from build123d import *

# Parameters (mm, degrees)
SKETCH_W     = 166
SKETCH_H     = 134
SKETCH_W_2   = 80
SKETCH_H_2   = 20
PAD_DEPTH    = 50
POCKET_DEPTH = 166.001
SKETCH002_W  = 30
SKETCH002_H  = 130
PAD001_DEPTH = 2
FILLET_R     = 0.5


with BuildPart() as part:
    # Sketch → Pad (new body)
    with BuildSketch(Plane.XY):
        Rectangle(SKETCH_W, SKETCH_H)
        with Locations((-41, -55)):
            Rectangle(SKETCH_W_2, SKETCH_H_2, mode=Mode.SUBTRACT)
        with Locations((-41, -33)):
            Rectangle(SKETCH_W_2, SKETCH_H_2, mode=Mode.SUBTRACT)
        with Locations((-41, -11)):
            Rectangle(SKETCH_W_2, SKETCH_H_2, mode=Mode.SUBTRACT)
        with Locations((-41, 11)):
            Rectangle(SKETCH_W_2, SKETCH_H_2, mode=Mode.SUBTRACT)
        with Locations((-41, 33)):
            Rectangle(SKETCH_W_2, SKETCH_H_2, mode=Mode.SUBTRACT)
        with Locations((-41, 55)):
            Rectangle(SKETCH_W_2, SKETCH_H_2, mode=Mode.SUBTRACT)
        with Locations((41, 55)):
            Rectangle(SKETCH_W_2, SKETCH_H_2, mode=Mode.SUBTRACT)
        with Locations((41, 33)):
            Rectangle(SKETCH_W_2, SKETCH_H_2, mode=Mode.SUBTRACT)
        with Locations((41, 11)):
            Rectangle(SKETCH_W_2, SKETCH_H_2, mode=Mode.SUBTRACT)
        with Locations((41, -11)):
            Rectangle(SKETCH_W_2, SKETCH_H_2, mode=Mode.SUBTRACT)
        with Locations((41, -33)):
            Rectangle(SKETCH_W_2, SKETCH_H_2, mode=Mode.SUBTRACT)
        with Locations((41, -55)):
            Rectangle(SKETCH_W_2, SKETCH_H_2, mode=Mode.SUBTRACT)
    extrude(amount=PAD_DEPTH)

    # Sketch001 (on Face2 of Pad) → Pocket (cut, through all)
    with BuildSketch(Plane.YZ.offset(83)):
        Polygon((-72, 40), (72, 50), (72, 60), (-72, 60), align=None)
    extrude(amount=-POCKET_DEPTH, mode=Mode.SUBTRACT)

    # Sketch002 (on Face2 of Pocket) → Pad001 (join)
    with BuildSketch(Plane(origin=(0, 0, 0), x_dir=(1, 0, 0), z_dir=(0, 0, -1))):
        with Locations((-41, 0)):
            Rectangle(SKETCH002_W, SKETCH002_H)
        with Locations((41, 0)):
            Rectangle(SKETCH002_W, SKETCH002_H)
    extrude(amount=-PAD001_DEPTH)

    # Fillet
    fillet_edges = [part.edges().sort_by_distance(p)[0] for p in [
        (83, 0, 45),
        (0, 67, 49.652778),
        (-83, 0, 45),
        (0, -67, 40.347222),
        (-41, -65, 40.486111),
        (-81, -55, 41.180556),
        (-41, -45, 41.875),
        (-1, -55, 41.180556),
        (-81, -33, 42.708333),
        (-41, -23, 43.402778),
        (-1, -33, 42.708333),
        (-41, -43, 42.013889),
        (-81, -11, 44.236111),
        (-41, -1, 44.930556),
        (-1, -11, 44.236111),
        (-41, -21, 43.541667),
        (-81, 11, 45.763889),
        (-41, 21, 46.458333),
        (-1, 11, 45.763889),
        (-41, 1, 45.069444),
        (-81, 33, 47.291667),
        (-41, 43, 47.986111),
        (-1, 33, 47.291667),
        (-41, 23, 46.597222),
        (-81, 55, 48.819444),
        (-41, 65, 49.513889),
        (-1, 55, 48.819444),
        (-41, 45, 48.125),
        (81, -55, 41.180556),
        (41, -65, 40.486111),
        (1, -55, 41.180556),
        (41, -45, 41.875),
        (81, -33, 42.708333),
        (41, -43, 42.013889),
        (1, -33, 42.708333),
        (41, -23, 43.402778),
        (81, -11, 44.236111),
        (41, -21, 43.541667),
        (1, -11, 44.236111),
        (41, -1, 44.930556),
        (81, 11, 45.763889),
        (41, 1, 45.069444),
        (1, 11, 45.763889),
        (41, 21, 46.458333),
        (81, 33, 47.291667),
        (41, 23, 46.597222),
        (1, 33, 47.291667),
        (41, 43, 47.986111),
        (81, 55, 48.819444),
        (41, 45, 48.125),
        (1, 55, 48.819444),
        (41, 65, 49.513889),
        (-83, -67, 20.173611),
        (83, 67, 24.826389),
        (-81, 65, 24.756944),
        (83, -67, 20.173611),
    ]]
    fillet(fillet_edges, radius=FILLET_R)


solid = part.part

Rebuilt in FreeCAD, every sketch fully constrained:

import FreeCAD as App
import Part
import Sketcher
Q = App.Units.Quantity


def edges_at(feature, points):
    """Names of the edges that pass closest to the given points."""
    edges = feature.Shape.Edges
    near = lambda p: min(range(len(edges)), key=lambda i: edges[i].distToShape(Part.Vertex(*p))[0])
    return sorted({f"Edge{near(p) + 1}" for p in points})


def add_polygon(sketch, points):
    """Adds a closed chain of lines whose ends are joined by coincident constraints."""
    first, n = sketch.GeometryCount, len(points)
    for a, b in zip(points, points[1:] + points[:1]):
        sketch.addGeometry(Part.LineSegment(App.Vector(*a, 0), App.Vector(*b, 0)), False)
    for i in range(n):
        sketch.addConstraint(Sketcher.Constraint("Coincident", first + i, 2, first + (i + 1) % n, 1))

doc = App.newDocument("Part")
params = doc.addObject("Spreadsheet::Sheet", "Params")
for row, (alias, value) in enumerate([
    ("sketch1_width", "166 mm"),
    ("sketch1_width2", "80 mm"),
    ("sketch1_height", "134 mm"),
    ("sketch1_height2", "20 mm"),
    ("pad1_length", "50 mm"),
    ("sketch2_width", "144 mm"),
    ("sketch2_height", "10 mm"),
    ("sketch2_height2", "20 mm"),
    ("sketch3_width", "30 mm"),
    ("sketch3_height", "130 mm"),
    ("pad2_length", "2 mm"),
    ("fillet_radius", "0.5 mm"),
], start=1):
    params.set(f"A{row}", alias)
    params.set(f"B{row}", "=" + value)
    params.setAlias(f"B{row}", alias)

body = doc.addObject("PartDesign::Body", "Body")

# Sketch on XY plane
sketch1 = body.newObject("Sketcher::SketchObject", "Sketch")
sketch1.AttachmentSupport = (doc.getObject("XY_Plane"), [""])
sketch1.MapMode = "FlatFace"
add_polygon(sketch1, [(-83, 67), (-83, -67), (83, -67), (83, 67)])  # lines 0-3
add_polygon(sketch1, [(-1, -65), (-81, -65), (-81, -45), (-1, -45)])  # lines 4-7
add_polygon(sketch1, [(-1, -43), (-81, -43), (-81, -23), (-1, -23)])  # lines 8-11
add_polygon(sketch1, [(-1, -21), (-81, -21), (-81, -1), (-1, -1)])  # lines 12-15
add_polygon(sketch1, [(81, -65), (1, -65), (1, -45), (81, -45)])  # lines 16-19
add_polygon(sketch1, [(81, -43), (1, -43), (1, -23), (81, -23)])  # lines 20-23
add_polygon(sketch1, [(81, -21), (1, -21), (1, -1), (81, -1)])  # lines 24-27
add_polygon(sketch1, [(-1, 1), (-81, 1), (-81, 21), (-1, 21)])  # lines 28-31
add_polygon(sketch1, [(-1, 23), (-81, 23), (-81, 43), (-1, 43)])  # lines 32-35
add_polygon(sketch1, [(-1, 45), (-81, 45), (-81, 65), (-1, 65)])  # lines 36-39
add_polygon(sketch1, [(81, 1), (1, 1), (1, 21), (81, 21)])  # lines 40-43
add_polygon(sketch1, [(81, 23), (1, 23), (1, 43), (81, 43)])  # lines 44-47
add_polygon(sketch1, [(81, 45), (1, 45), (1, 65), (81, 65)])  # lines 48-51
sketch1.addConstraint(Sketcher.Constraint("Vertical", 0))
sketch1.addConstraint(Sketcher.Constraint("Horizontal", 1))
sketch1.addConstraint(Sketcher.Constraint("Vertical", 2))
sketch1.addConstraint(Sketcher.Constraint("Horizontal", 3))
sketch1.addConstraint(Sketcher.Constraint("Horizontal", 4))
sketch1.addConstraint(Sketcher.Constraint("Vertical", 5))
sketch1.addConstraint(Sketcher.Constraint("Horizontal", 6))
sketch1.addConstraint(Sketcher.Constraint("Vertical", 7))
sketch1.addConstraint(Sketcher.Constraint("Horizontal", 8))
sketch1.addConstraint(Sketcher.Constraint("Vertical", 9))
sketch1.addConstraint(Sketcher.Constraint("Horizontal", 10))
sketch1.addConstraint(Sketcher.Constraint("Vertical", 11))
sketch1.addConstraint(Sketcher.Constraint("Horizontal", 12))
sketch1.addConstraint(Sketcher.Constraint("Vertical", 13))
sketch1.addConstraint(Sketcher.Constraint("Horizontal", 14))
sketch1.addConstraint(Sketcher.Constraint("Vertical", 15))
sketch1.addConstraint(Sketcher.Constraint("Horizontal", 16))
sketch1.addConstraint(Sketcher.Constraint("Vertical", 17))
sketch1.addConstraint(Sketcher.Constraint("Horizontal", 18))
sketch1.addConstraint(Sketcher.Constraint("Vertical", 19))
sketch1.addConstraint(Sketcher.Constraint("Horizontal", 20))
sketch1.addConstraint(Sketcher.Constraint("Vertical", 21))
sketch1.addConstraint(Sketcher.Constraint("Horizontal", 22))
sketch1.addConstraint(Sketcher.Constraint("Vertical", 23))
sketch1.addConstraint(Sketcher.Constraint("Horizontal", 24))
sketch1.addConstraint(Sketcher.Constraint("Vertical", 25))
sketch1.addConstraint(Sketcher.Constraint("Horizontal", 26))
sketch1.addConstraint(Sketcher.Constraint("Vertical", 27))
sketch1.addConstraint(Sketcher.Constraint("Horizontal", 28))
sketch1.addConstraint(Sketcher.Constraint("Vertical", 29))
sketch1.addConstraint(Sketcher.Constraint("Horizontal", 30))
sketch1.addConstraint(Sketcher.Constraint("Vertical", 31))
sketch1.addConstraint(Sketcher.Constraint("Horizontal", 32))
sketch1.addConstraint(Sketcher.Constraint("Vertical", 33))
sketch1.addConstraint(Sketcher.Constraint("Horizontal", 34))
sketch1.addConstraint(Sketcher.Constraint("Vertical", 35))
sketch1.addConstraint(Sketcher.Constraint("Horizontal", 36))
sketch1.addConstraint(Sketcher.Constraint("Vertical", 37))
sketch1.addConstraint(Sketcher.Constraint("Horizontal", 38))
sketch1.addConstraint(Sketcher.Constraint("Vertical", 39))
sketch1.addConstraint(Sketcher.Constraint("Horizontal", 40))
sketch1.addConstraint(Sketcher.Constraint("Vertical", 41))
sketch1.addConstraint(Sketcher.Constraint("Horizontal", 42))
sketch1.addConstraint(Sketcher.Constraint("Vertical", 43))
sketch1.addConstraint(Sketcher.Constraint("Horizontal", 44))
sketch1.addConstraint(Sketcher.Constraint("Vertical", 45))
sketch1.addConstraint(Sketcher.Constraint("Horizontal", 46))
sketch1.addConstraint(Sketcher.Constraint("Vertical", 47))
sketch1.addConstraint(Sketcher.Constraint("Horizontal", 48))
sketch1.addConstraint(Sketcher.Constraint("Vertical", 49))
sketch1.addConstraint(Sketcher.Constraint("Horizontal", 50))
sketch1.addConstraint(Sketcher.Constraint("Vertical", 51))
sketch1.addConstraint(Sketcher.Constraint("Symmetric", 0, 2, 2, 2, -1, 1))
sketch1.addConstraint(Sketcher.Constraint("Symmetric", 26, 2, 28, 2, -1, 1))
sketch1.addConstraint(Sketcher.Constraint("Symmetric", 24, 2, 30, 2, -1, 1))
sketch1.addConstraint(Sketcher.Constraint("Symmetric", 22, 2, 32, 2, -1, 1))
sketch1.addConstraint(Sketcher.Constraint("Symmetric", 20, 2, 34, 2, -1, 1))
sketch1.addConstraint(Sketcher.Constraint("Symmetric", 18, 2, 36, 2, -1, 1))
sketch1.addConstraint(Sketcher.Constraint("Symmetric", 16, 2, 38, 2, -1, 1))
sketch1.addConstraint(Sketcher.Constraint("Symmetric", 14, 2, 40, 2, -1, 1))
sketch1.addConstraint(Sketcher.Constraint("Symmetric", 12, 2, 42, 2, -1, 1))
sketch1.addConstraint(Sketcher.Constraint("Symmetric", 10, 2, 44, 2, -1, 1))
sketch1.addConstraint(Sketcher.Constraint("Symmetric", 8, 2, 46, 2, -1, 1))
sketch1.addConstraint(Sketcher.Constraint("Symmetric", 6, 2, 48, 2, -1, 1))
sketch1.addConstraint(Sketcher.Constraint("Symmetric", 4, 2, 50, 2, -1, 1))
sketch1.addConstraint(Sketcher.Constraint("Symmetric", 7, 2, 16, 2, -2))
sketch1.addConstraint(Sketcher.Constraint("Symmetric", 5, 2, 18, 2, -2))
sketch1.addConstraint(Sketcher.Constraint("Symmetric", 11, 2, 20, 2, -2))
sketch1.addConstraint(Sketcher.Constraint("Symmetric", 9, 2, 22, 2, -2))
sketch1.addConstraint(Sketcher.Constraint("Symmetric", 15, 2, 24, 2, -2))
sketch1.addConstraint(Sketcher.Constraint("Symmetric", 13, 2, 26, 2, -2))
sketch1.addConstraint(Sketcher.Constraint("Vertical", 5, 2, 8, 2))
sketch1.addConstraint(Sketcher.Constraint("Vertical", 7, 2, 10, 2))
sketch1.addConstraint(Sketcher.Constraint("Vertical", 9, 2, 12, 2))
sketch1.addConstraint(Sketcher.Constraint("Vertical", 11, 2, 14, 2))
sketch1.addConstraint(Sketcher.Constraint("Equal", 7, 9))
sketch1.addConstraint(Sketcher.Constraint("Equal", 11, 13))
sketch1.addConstraint(Sketcher.Constraint("DistanceX", 1, 1, 1, 2, Q("166 mm")))
sketch1.addConstraint(Sketcher.Constraint("DistanceX", 4, 2, 4, 1, Q("80 mm")))
sketch1.addConstraint(Sketcher.Constraint("DistanceY", 0, 2, 0, 1, Q("134 mm")))
sketch1.addConstraint(Sketcher.Constraint("DistanceY", 5, 1, 5, 2, Q("20 mm")))
sketch1.addConstraint(Sketcher.Constraint("DistanceX", 4, 2, -1, 1, Q("81 mm")))
sketch1.addConstraint(Sketcher.Constraint("DistanceY", 4, 2, -1, 1, Q("65 mm")))
sketch1.addConstraint(Sketcher.Constraint("DistanceY", 8, 2, -1, 1, Q("43 mm")))
sketch1.addConstraint(Sketcher.Constraint("DistanceY", 12, 2, -1, 1, Q("21 mm")))
sketch1.setExpression("Constraints[129]", "Params.sketch1_width")
sketch1.setExpression("Constraints[130]", "Params.sketch1_width2")
sketch1.setExpression("Constraints[131]", "Params.sketch1_height")
sketch1.setExpression("Constraints[132]", "Params.sketch1_height2")
pad1 = body.newObject("PartDesign::Pad", "Pad")
pad1.Profile = sketch1
pad1.setExpression("Length", "Params.pad1_length")

# Sketch on YZ plane
sketch2 = body.newObject("Sketcher::SketchObject", "Sketch001")
sketch2.AttachmentSupport = (doc.getObject("YZ_Plane"), [""])
sketch2.MapMode = "FlatFace"
sketch2.AttachmentOffset = App.Placement(App.Vector(0, 0, 83), App.Rotation())
add_polygon(sketch2, [(-72, 40), (72, 50), (72, 60), (-72, 60)])  # lines 0-3
sketch2.addConstraint(Sketcher.Constraint("Vertical", 1))
sketch2.addConstraint(Sketcher.Constraint("Horizontal", 2))
sketch2.addConstraint(Sketcher.Constraint("Vertical", 3))
sketch2.addConstraint(Sketcher.Constraint("DistanceX", 2, 2, 2, 1, Q("144 mm")))
sketch2.addConstraint(Sketcher.Constraint("DistanceY", 1, 1, 1, 2, Q("10 mm")))
sketch2.addConstraint(Sketcher.Constraint("DistanceY", 3, 2, 3, 1, Q("20 mm")))
sketch2.addConstraint(Sketcher.Constraint("DistanceX", -1, 1, 0, 2, Q("72 mm")))
sketch2.addConstraint(Sketcher.Constraint("DistanceY", -1, 1, 0, 2, Q("50 mm")))
sketch2.setExpression("Constraints[7]", "Params.sketch2_width")
sketch2.setExpression("Constraints[8]", "Params.sketch2_height")
sketch2.setExpression("Constraints[9]", "Params.sketch2_height2")
pocket1 = body.newObject("PartDesign::Pocket", "Pocket")
pocket1.Profile = sketch2
pocket1.Type = "ThroughAll"

# Sketch on XY plane
sketch3 = body.newObject("Sketcher::SketchObject", "Sketch002")
sketch3.AttachmentSupport = (doc.getObject("XY_Plane"), [""])
sketch3.MapMode = "FlatFace"
add_polygon(sketch3, [(-56, -65), (-56, 65), (-26, 65), (-26, -65)])  # lines 0-3
add_polygon(sketch3, [(26, -65), (26, 65), (56, 65), (56, -65)])  # lines 4-7
sketch3.addConstraint(Sketcher.Constraint("Vertical", 0))
sketch3.addConstraint(Sketcher.Constraint("Horizontal", 1))
sketch3.addConstraint(Sketcher.Constraint("Vertical", 2))
sketch3.addConstraint(Sketcher.Constraint("Horizontal", 3))
sketch3.addConstraint(Sketcher.Constraint("Vertical", 4))
sketch3.addConstraint(Sketcher.Constraint("Horizontal", 5))
sketch3.addConstraint(Sketcher.Constraint("Vertical", 6))
sketch3.addConstraint(Sketcher.Constraint("Horizontal", 7))
sketch3.addConstraint(Sketcher.Constraint("Symmetric", 2, 2, 4, 2, -1, 1))
sketch3.addConstraint(Sketcher.Constraint("Symmetric", 0, 2, 6, 2, -1, 1))
sketch3.addConstraint(Sketcher.Constraint("Horizontal", 1, 2, 4, 2))
sketch3.addConstraint(Sketcher.Constraint("DistanceX", 1, 1, 1, 2, Q("30 mm")))
sketch3.addConstraint(Sketcher.Constraint("DistanceY", 0, 1, 0, 2, Q("130 mm")))
sketch3.addConstraint(Sketcher.Constraint("DistanceX", 0, 2, -1, 1, Q("56 mm")))
sketch3.setExpression("Constraints[19]", "Params.sketch3_width")
sketch3.setExpression("Constraints[20]", "Params.sketch3_height")
pad2 = body.newObject("PartDesign::Pad", "Pad001")
pad2.Profile = sketch3
pad2.setExpression("Length", "Params.pad2_length")
doc.recompute()

fillet = body.newObject("PartDesign::Fillet", "Fillet")
fillet.Base = (pad2, edges_at(pad2, [
    (83, 0, 45),
    (0, 67, 49.653),
    (-83, 0, 45),
    (0, -67, 40.347),
    (-41, -65, 40.486),
    (-81, -55, 41.181),
    (-41, -45, 41.875),
    (-1, -55, 41.181),
    (-81, -33, 42.708),
    (-41, -23, 43.403),
    (-1, -33, 42.708),
    (-41, -43, 42.014),
    (-81, -11, 44.236),
    (-41, -1, 44.931),
    (-1, -11, 44.236),
    (-41, -21, 43.542),
    (-81, 11, 45.764),
    (-41, 21, 46.458),
    (-1, 11, 45.764),
    (-41, 1, 45.069),
    (-81, 33, 47.292),
    (-41, 43, 47.986),
    (-1, 33, 47.292),
    (-41, 23, 46.597),
    (-81, 55, 48.819),
    (-41, 65, 49.514),
    (-1, 55, 48.819),
    (-41, 45, 48.125),
    (81, -55, 41.181),
    (41, -65, 40.486),
    (1, -55, 41.181),
    (41, -45, 41.875),
    (81, -33, 42.708),
    (41, -43, 42.014),
    (1, -33, 42.708),
    (41, -23, 43.403),
    (81, -11, 44.236),
    (41, -21, 43.542),
    (1, -11, 44.236),
    (41, -1, 44.931),
    (81, 11, 45.764),
    (41, 1, 45.069),
    (1, 11, 45.764),
    (41, 21, 46.458),
    (81, 33, 47.292),
    (41, 23, 46.597),
    (1, 33, 47.292),
    (41, 43, 47.986),
    (81, 55, 48.819),
    (41, 45, 48.125),
    (1, 55, 48.819),
    (41, 65, 49.514),
    (-83, -67, 20.174),
    (83, 67, 24.826),
    (-81, 65, 24.757),
    (83, -67, 20.174),
]))
fillet.setExpression("Radius", "Params.fillet_radius")

doc.recompute()
